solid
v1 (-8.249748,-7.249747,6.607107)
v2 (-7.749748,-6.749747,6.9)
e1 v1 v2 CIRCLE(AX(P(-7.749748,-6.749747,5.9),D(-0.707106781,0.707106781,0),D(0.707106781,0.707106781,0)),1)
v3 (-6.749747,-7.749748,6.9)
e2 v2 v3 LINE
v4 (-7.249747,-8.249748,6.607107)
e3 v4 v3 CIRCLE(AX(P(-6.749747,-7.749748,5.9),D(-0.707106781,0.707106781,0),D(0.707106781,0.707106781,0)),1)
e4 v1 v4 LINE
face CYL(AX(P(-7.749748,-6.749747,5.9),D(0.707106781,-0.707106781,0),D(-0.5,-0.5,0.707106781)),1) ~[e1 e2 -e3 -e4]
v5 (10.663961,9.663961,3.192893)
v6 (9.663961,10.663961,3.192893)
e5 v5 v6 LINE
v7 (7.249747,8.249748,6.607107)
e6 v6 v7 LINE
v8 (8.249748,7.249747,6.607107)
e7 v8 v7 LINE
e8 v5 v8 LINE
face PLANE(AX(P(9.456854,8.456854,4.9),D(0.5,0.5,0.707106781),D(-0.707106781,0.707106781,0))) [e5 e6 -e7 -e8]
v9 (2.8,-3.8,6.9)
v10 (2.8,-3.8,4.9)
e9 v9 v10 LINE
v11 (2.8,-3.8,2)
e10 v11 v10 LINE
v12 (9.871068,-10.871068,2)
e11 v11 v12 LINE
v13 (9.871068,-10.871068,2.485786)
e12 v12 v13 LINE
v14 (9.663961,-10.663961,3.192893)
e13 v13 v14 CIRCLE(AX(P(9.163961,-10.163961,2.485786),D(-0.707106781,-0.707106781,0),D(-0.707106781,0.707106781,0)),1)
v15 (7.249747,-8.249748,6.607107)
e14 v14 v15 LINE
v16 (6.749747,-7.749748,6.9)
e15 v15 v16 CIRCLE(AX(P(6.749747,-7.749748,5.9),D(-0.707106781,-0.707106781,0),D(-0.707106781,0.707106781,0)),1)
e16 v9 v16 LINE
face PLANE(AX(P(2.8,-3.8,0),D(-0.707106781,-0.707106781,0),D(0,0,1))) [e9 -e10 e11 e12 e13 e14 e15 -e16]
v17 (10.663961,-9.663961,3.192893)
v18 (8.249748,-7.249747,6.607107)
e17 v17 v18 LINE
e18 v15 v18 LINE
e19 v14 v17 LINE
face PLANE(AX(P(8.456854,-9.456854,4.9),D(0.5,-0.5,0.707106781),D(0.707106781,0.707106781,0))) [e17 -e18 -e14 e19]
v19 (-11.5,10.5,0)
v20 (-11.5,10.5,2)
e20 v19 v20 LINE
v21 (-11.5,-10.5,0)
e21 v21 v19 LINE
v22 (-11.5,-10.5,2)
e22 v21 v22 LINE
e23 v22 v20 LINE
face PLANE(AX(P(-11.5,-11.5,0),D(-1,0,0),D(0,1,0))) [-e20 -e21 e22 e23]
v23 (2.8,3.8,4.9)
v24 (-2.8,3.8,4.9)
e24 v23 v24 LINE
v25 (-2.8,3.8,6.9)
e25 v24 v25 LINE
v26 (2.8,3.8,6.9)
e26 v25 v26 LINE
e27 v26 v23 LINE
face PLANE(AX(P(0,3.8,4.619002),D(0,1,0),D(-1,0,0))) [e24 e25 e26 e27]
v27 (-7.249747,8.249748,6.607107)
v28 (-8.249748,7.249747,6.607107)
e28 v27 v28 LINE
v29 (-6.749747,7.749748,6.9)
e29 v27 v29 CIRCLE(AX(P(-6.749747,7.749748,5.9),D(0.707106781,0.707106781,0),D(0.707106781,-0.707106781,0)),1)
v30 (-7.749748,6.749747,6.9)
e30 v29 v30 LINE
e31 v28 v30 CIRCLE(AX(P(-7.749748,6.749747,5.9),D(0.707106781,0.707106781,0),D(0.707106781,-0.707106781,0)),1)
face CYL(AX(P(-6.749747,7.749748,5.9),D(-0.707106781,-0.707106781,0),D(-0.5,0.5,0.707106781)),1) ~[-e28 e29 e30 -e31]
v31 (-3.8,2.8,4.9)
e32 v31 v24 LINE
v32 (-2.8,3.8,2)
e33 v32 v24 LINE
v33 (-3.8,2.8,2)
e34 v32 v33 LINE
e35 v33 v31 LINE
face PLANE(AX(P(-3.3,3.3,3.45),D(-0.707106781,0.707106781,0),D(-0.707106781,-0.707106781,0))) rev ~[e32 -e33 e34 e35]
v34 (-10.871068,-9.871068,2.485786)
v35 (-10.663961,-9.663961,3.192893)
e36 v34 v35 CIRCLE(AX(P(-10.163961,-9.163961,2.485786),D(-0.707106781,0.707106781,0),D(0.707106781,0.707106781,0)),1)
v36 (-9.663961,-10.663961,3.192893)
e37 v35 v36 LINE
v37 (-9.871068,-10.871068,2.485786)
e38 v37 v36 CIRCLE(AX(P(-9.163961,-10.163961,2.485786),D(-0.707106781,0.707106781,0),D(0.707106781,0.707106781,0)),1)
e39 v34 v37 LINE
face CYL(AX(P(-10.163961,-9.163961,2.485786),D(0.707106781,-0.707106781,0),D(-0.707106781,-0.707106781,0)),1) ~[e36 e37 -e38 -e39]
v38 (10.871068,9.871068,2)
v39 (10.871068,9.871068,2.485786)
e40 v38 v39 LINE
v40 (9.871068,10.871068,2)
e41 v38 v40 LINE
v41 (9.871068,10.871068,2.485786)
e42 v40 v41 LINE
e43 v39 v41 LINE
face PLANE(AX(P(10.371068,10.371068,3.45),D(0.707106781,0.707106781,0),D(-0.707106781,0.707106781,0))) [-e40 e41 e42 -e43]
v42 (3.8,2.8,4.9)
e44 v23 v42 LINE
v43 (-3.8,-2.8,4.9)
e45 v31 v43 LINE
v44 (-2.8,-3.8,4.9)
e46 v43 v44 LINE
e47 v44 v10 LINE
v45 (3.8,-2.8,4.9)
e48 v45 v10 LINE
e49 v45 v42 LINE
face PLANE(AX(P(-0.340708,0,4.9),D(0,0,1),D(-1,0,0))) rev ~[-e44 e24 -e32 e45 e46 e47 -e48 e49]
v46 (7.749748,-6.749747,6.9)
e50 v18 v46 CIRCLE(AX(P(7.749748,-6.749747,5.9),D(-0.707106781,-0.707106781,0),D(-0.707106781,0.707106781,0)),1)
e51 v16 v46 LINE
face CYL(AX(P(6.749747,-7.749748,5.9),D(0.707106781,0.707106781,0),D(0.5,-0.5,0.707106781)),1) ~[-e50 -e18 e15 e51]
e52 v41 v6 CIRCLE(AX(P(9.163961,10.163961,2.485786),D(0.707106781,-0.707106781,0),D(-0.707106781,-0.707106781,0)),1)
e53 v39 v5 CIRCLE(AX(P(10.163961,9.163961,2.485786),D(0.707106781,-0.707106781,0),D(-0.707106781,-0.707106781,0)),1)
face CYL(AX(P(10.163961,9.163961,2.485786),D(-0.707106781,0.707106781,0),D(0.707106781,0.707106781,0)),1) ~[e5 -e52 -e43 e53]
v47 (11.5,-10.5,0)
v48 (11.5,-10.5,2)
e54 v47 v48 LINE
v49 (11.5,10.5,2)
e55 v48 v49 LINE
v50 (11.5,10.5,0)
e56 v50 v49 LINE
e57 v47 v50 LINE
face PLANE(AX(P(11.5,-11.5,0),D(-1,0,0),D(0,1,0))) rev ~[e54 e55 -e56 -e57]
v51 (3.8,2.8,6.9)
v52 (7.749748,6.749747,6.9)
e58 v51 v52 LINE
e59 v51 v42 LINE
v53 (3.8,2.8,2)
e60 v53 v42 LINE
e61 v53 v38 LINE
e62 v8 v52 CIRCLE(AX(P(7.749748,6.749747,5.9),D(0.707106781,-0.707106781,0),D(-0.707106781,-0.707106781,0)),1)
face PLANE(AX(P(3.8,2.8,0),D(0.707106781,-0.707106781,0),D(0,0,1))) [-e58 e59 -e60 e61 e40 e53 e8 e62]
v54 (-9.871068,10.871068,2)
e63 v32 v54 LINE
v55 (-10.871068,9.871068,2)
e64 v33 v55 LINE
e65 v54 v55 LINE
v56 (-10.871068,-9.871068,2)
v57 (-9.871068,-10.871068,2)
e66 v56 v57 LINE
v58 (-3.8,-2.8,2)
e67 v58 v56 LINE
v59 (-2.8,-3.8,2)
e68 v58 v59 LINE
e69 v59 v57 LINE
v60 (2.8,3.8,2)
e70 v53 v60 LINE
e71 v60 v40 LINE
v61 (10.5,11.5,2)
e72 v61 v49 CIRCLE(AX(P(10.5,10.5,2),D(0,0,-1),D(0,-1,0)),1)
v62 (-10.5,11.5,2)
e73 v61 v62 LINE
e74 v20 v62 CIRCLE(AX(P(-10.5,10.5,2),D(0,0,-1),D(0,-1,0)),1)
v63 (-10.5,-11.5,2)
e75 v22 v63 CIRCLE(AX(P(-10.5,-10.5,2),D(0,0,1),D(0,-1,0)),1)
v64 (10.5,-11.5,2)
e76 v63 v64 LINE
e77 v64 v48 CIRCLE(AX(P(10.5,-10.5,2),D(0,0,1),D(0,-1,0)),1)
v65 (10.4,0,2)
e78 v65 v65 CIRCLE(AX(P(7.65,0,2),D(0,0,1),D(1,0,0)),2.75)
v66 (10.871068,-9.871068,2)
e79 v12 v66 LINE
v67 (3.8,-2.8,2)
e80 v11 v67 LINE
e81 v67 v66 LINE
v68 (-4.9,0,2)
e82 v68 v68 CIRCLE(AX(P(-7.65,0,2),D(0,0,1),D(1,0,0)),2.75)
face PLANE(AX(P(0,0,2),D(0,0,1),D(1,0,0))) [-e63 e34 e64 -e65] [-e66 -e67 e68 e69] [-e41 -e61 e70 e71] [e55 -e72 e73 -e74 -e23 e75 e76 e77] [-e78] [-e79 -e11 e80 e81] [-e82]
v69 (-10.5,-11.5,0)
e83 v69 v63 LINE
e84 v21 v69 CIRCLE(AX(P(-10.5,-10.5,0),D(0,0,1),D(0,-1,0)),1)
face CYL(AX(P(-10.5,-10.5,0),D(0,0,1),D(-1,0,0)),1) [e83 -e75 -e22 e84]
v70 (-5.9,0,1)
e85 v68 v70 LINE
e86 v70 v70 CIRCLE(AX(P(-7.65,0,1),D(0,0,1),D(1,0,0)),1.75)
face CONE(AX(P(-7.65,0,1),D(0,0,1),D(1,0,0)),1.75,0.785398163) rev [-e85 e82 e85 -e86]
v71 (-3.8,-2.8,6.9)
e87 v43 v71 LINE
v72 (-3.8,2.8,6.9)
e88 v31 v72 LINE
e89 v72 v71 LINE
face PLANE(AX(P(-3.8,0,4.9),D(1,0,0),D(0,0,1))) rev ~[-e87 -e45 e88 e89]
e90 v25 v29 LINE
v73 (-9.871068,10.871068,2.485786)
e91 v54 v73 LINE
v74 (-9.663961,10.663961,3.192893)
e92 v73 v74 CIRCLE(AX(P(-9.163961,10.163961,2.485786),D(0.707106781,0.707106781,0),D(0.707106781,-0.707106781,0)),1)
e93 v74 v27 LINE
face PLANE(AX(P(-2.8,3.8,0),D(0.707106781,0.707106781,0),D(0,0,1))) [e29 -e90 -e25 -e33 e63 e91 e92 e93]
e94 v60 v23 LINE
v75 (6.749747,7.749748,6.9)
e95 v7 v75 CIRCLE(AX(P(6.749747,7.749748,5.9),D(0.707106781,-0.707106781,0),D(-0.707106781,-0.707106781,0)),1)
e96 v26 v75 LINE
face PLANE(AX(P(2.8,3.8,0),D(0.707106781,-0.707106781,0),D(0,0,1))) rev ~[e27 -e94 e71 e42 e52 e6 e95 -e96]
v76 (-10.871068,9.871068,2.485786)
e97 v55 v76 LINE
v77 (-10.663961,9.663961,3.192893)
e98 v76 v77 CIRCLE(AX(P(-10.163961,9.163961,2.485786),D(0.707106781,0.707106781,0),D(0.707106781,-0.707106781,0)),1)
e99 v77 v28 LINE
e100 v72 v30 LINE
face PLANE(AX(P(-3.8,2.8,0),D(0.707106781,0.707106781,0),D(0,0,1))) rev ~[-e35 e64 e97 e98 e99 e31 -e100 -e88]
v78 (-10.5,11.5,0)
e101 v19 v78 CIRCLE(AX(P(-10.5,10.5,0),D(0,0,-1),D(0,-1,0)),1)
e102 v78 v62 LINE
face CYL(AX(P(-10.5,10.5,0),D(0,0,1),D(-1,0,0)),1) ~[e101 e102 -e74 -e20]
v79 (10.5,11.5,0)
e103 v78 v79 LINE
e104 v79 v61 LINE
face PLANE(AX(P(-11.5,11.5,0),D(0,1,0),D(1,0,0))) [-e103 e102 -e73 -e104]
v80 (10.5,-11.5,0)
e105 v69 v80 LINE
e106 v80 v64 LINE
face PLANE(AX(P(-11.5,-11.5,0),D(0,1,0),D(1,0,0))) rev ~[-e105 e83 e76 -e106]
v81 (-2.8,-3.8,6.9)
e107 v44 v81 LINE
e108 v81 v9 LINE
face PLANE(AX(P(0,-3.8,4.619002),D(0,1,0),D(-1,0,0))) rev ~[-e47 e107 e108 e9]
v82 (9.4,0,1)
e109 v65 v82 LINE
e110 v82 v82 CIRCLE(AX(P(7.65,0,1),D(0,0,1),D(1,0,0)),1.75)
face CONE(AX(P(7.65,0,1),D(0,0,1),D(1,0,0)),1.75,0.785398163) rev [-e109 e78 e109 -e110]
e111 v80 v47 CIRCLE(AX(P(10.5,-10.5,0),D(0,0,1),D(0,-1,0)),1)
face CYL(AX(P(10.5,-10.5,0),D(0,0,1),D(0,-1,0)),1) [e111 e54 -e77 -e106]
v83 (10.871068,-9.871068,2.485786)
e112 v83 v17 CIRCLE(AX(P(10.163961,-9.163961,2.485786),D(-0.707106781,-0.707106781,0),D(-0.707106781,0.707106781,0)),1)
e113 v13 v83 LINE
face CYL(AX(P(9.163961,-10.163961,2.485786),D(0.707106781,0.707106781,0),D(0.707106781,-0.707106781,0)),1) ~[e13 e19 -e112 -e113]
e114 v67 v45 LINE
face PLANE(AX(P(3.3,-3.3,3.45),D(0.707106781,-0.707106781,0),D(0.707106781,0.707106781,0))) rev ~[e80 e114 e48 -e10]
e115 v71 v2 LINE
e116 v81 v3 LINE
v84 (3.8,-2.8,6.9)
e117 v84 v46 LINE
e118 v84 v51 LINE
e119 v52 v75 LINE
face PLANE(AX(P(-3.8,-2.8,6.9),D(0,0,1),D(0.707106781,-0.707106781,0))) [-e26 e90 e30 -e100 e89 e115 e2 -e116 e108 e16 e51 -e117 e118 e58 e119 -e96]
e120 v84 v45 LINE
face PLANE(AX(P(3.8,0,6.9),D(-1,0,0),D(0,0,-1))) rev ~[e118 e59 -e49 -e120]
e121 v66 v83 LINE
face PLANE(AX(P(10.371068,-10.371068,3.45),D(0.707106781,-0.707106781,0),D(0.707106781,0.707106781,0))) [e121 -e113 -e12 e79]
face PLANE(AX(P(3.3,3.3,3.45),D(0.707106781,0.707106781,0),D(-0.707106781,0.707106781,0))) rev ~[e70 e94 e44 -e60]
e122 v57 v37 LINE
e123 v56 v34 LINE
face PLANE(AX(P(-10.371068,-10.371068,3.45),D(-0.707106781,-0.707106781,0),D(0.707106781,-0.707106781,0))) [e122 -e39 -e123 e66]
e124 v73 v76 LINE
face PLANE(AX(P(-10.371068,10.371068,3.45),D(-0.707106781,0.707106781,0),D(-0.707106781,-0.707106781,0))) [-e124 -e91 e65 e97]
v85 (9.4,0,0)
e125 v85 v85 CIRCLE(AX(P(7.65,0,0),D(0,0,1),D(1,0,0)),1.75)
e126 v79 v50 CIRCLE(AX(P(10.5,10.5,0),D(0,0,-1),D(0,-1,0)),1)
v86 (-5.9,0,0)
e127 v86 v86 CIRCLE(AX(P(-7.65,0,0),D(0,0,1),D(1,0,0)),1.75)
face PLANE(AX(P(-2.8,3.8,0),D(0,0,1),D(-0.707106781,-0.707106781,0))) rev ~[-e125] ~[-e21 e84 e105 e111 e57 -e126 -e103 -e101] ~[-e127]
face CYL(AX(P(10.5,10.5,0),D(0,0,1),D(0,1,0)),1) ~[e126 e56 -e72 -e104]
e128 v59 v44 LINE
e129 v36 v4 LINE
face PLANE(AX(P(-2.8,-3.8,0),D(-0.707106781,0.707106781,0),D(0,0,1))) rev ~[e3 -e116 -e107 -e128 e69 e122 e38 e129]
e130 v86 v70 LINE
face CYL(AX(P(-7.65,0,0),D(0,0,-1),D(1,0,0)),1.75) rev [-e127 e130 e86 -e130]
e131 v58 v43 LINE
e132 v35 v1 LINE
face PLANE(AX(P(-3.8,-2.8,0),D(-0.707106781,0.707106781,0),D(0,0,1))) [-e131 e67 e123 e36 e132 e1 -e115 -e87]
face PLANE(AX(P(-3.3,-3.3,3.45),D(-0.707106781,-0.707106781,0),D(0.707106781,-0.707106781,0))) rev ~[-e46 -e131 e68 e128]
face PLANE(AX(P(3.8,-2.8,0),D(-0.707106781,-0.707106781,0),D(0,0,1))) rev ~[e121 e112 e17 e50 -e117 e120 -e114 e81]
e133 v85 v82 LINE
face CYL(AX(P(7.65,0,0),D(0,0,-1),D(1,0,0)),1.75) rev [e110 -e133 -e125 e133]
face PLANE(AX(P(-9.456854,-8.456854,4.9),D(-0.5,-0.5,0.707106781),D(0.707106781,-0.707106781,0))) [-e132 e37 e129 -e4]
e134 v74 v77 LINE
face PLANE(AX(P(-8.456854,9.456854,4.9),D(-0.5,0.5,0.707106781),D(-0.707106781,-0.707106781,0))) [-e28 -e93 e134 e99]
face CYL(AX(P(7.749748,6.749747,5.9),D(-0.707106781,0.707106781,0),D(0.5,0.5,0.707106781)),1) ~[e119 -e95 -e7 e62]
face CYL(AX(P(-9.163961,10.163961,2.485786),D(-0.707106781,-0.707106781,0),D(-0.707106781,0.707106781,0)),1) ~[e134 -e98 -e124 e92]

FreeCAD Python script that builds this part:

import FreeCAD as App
import Part
import Sketcher
from FreeCAD import Vector


def edges_at(feature, points):
    """Names of the edges that pass closest to the given points."""
    edges = feature.Shape.Edges
    near = lambda p: min(range(len(edges)), key=lambda i: edges[i].distToShape(Part.Vertex(*p))[0])
    return sorted({f"Edge{near(p) + 1}" for p in points})

doc = App.newDocument("Part")
params = doc.addObject("Spreadsheet::Sheet", "Params")
for row, (alias, value) in enumerate([
    ("sketch1_diameter", "3.5 mm"),
    ("sketch1_width", "23 mm"),
    ("pad1_length", "2 mm"),
    ("fillet_radius", "1 mm"),
    ("chamfer_size", "1 mm"),
    ("sketch2_height", "2 mm"),
    ("sketch2_width", "7.6 mm"),
    ("sketch2_height2", "4.9 mm"),
    ("pad2_length", "7.6 mm"),
    ("chamfer2_size", "1 mm"),
    ("sketch3_height", "6.9 mm"),
    ("pad3_length", "10 mm"),
    ("chamfer3_size", "4 mm"),
    ("sketch4_height", "2.9 mm"),
    ("fillet2_radius", "1 mm"),
], start=1):
    params.set(f"A{row}", alias)
    params.set(f"B{row}", "=" + value)
    params.setAlias(f"B{row}", alias)

body = doc.addObject("PartDesign::Body", "Body")

# Sketch on XY plane
sketch1 = body.newObject("Sketcher::SketchObject", "Sketch")
sketch1.AttachmentSupport = (doc.getObject("XY_Plane"), [""])
sketch1.MapMode = "FlatFace"
sketch1.addGeometry([
    Part.LineSegment(Vector(-11.5, 11.5, 0), Vector(-11.5, -11.5, 0)),  # 0
    Part.LineSegment(Vector(-11.5, -11.5, 0), Vector(11.5, -11.5, 0)),  # 1
    Part.LineSegment(Vector(11.5, -11.5, 0), Vector(11.5, 11.5, 0)),  # 2
    Part.LineSegment(Vector(11.5, 11.5, 0), Vector(-11.5, 11.5, 0)),  # 3
    Part.Circle(Vector(-7.65, 0, 0), Vector(0, 0, 1), 1.75),  # 4
    Part.Circle(Vector(7.65, 0, 0), Vector(0, 0, 1), 1.75),  # 5
], False)
sketch1.addConstraint([
    Sketcher.Constraint("Coincident", 0, 2, 1, 1),
    Sketcher.Constraint("Coincident", 1, 2, 2, 1),
    Sketcher.Constraint("Coincident", 2, 2, 3, 1),
    Sketcher.Constraint("Coincident", 3, 2, 0, 1),
    Sketcher.Constraint("Vertical", 0),
    Sketcher.Constraint("Horizontal", 1),
    Sketcher.Constraint("Vertical", 2),
    Sketcher.Constraint("Horizontal", 3),
    Sketcher.Constraint("Equal", 4, 5),
    Sketcher.Constraint("Symmetric", 4, 3, 5, 3, -1, 1),
    Sketcher.Constraint("Symmetric", 0, 2, 2, 2, -1, 1),
    Sketcher.Constraint("PointOnObject", 4, 3, -1),
    Sketcher.Constraint("Equal", 3, 0),
    Sketcher.Constraint("Diameter", 4, 3.5),
    Sketcher.Constraint("DistanceX", 1, 1, 1, 2, 23.0),
    Sketcher.Constraint("DistanceX", 4, 3, 5, 3, 15.3),
])
sketch1.setExpression("Constraints[13]", "Params.sketch1_diameter")
sketch1.setExpression("Constraints[14]", "Params.sketch1_width")
pad1 = body.newObject("PartDesign::Pad", "Pad")
pad1.Profile = sketch1
pad1.setExpression("Length", "Params.pad1_length")
doc.recompute()

fillet = body.newObject("PartDesign::Fillet", "Fillet")
fillet.Base = (pad1, edges_at(pad1, [
    (-11.5, 11.5, 1),
    (-11.5, -11.5, 1),
    (11.5, -11.5, 1),
    (11.5, 11.5, 1),
]))
fillet.setExpression("Radius", "Params.fillet_radius")
doc.recompute()

chamfer = body.newObject("PartDesign::Chamfer", "Chamfer")
chamfer.Base = (fillet, edges_at(fillet, [(-9.4, 0, 2), (5.9, 0, 2)]))
chamfer.setExpression("Size", "Params.chamfer_size")

# Sketch on XZ plane
sketch2 = body.newObject("Sketcher::SketchObject", "Sketch001")
sketch2.AttachmentSupport = (doc.getObject("XZ_Plane"), [""])
sketch2.MapMode = "FlatFace"
sketch2.addGeometry([
    Part.LineSegment(Vector(3.8, 6.9, 0), Vector(-3.8, 6.9, 0)),  # 0
    Part.LineSegment(Vector(-3.8, 6.9, 0), Vector(-3.8, 4.9, 0)),  # 1
    Part.LineSegment(Vector(-3.8, 4.9, 0), Vector(-0.340708, 4.9, 0)),  # 2
    Part.LineSegment(Vector(-0.340708, 4.9, 0), Vector(-0.340708, 0, 0)),  # 3
    Part.LineSegment(Vector(-0.340708, 0, 0), Vector(0.340708, 0, 0)),  # 4
    Part.LineSegment(Vector(0.340708, 0, 0), Vector(0.340708, 4.9, 0)),  # 5
    Part.LineSegment(Vector(0.340708, 4.9, 0), Vector(3.8, 4.9, 0)),  # 6
    Part.LineSegment(Vector(3.8, 4.9, 0), Vector(3.8, 6.9, 0)),  # 7
], False)
sketch2.addConstraint([
    Sketcher.Constraint("Coincident", 0, 2, 1, 1),
    Sketcher.Constraint("Coincident", 1, 2, 2, 1),
    Sketcher.Constraint("Coincident", 2, 2, 3, 1),
    Sketcher.Constraint("Coincident", 3, 2, 4, 1),
    Sketcher.Constraint("Coincident", 4, 2, 5, 1),
    Sketcher.Constraint("Coincident", 5, 2, 6, 1),
    Sketcher.Constraint("Coincident", 6, 2, 7, 1),
    Sketcher.Constraint("Coincident", 7, 2, 0, 1),
    Sketcher.Constraint("Horizontal", 0),
    Sketcher.Constraint("Vertical", 1),
    Sketcher.Constraint("Horizontal", 2),
    Sketcher.Constraint("Vertical", 3),
    Sketcher.Constraint("Horizontal", 4),
    Sketcher.Constraint("Vertical", 5),
    Sketcher.Constraint("Horizontal", 6),
    Sketcher.Constraint("Vertical", 7),
    Sketcher.Constraint("Symmetric", 3, 2, 4, 2, -1, 1),
    Sketcher.Constraint("Symmetric", 1, 2, 6, 2, -2),
    Sketcher.Constraint("DistanceY", 1, 2, 1, 1, 2.0),
    Sketcher.Constraint("DistanceX", 0, 2, 0, 1, 7.6),
    Sketcher.Constraint("DistanceY", 3, 2, 3, 1, 4.9),
    Sketcher.Constraint("DistanceX", 2, 1, 2, 2, 3.459292),
])
sketch2.setExpression("Constraints[18]", "Params.sketch2_height")
sketch2.setExpression("Constraints[19]", "Params.sketch2_width")
sketch2.setExpression("Constraints[20]", "Params.sketch2_height2")
pad2 = body.newObject("PartDesign::Pad", "Pad001")
pad2.Profile = sketch2
pad2.setExpression("Length", "Params.pad2_length")
pad2.Midplane = True
doc.recompute()

chamfer2 = body.newObject("PartDesign::Chamfer", "Chamfer001")
chamfer2.Base = (pad2, edges_at(pad2, [
    (-3.8, -3.8, 5.9),
    (-3.8, 3.8, 5.9),
    (3.8, -3.8, 5.9),
    (3.8, 3.8, 5.9),
]))
chamfer2.setExpression("Size", "Params.chamfer2_size")

# Sketch on an angled plane
sketch3 = body.newObject("Sketcher::SketchObject", "Sketch002")
sketch3.Placement = App.Placement(Vector(-3.3, -3.3, 0), App.Rotation(Vector(0.707106781, -0.707106781, 0), Vector(0, 0, 0.999999999), Vector(-0.707106781, -0.707106781, 0), "ZXY"))
sketch3.addGeometry([
    Part.LineSegment(Vector(-0.707107, 6.9, 0), Vector(-0.707107, 0, 0)),
    Part.LineSegment(Vector(-0.707107, 0, 0), Vector(0.707107, 0, 0)),
    Part.LineSegment(Vector(0.707107, 0, 0), Vector(0.707107, 6.9, 0)),
    Part.LineSegment(Vector(0.707107, 6.9, 0), Vector(-0.707107, 6.9, 0)),
], False)
sketch3.addConstraint([
    Sketcher.Constraint("Coincident", 0, 2, 1, 1),
    Sketcher.Constraint("Coincident", 1, 2, 2, 1),
    Sketcher.Constraint("Coincident", 2, 2, 3, 1),
    Sketcher.Constraint("Coincident", 3, 2, 0, 1),
    Sketcher.Constraint("Vertical", 0),
    Sketcher.Constraint("Horizontal", 1),
    Sketcher.Constraint("Vertical", 2),
    Sketcher.Constraint("Horizontal", 3),
    Sketcher.Constraint("Symmetric", 0, 2, 1, 2, -1, 1),
    Sketcher.Constraint("DistanceY", 0, 2, 0, 1, 6.9),
    Sketcher.Constraint("DistanceX", 1, 1, 1, 2, 1.414214),
])
sketch3.setExpression("Constraints[9]", "Params.sketch3_height")
pad3 = body.newObject("PartDesign::Pad", "Pad002")
pad3.Profile = sketch3
pad3.setExpression("Length", "Params.pad3_length")
doc.recompute()

polarpattern = body.newObject("PartDesign::PolarPattern", "PolarPattern")
polarpattern.Originals = [pad3]
polarpattern.Axis = (doc.getObject("Z_Axis"), [""])
polarpattern.Angle = 360
polarpattern.Occurrences = 4
body.Tip = polarpattern
doc.recompute()

chamfer3 = body.newObject("PartDesign::Chamfer", "Chamfer002")
chamfer3.Base = (polarpattern, edges_at(polarpattern, [
    (10.371, -10.371, 6.9),
    (10.371, 10.371, 6.9),
    (-10.371, 10.371, 6.9),
    (-10.371, -10.371, 6.9),
]))
chamfer3.setExpression("Size", "Params.chamfer3_size")

# Sketch on XZ plane
sketch4 = body.newObject("Sketcher::SketchObject", "Sketch003")
sketch4.AttachmentSupport = (doc.getObject("XZ_Plane"), [""])
sketch4.MapMode = "FlatFace"
sketch4.addGeometry([
    Part.LineSegment(Vector(-1.060404, 4.9, 0), Vector(-1.060404, 2, 0)),
    Part.LineSegment(Vector(-1.060404, 2, 0), Vector(1.305322, 2, 0)),
    Part.LineSegment(Vector(1.305322, 2, 0), Vector(1.305322, 4.9, 0)),
    Part.LineSegment(Vector(1.305322, 4.9, 0), Vector(-1.060404, 4.9, 0)),
], False)
sketch4.addConstraint([
    Sketcher.Constraint("Coincident", 0, 2, 1, 1),
    Sketcher.Constraint("Coincident", 1, 2, 2, 1),
    Sketcher.Constraint("Coincident", 2, 2, 3, 1),
    Sketcher.Constraint("Coincident", 3, 2, 0, 1),
    Sketcher.Constraint("Vertical", 0),
    Sketcher.Constraint("Horizontal", 1),
    Sketcher.Constraint("Vertical", 2),
    Sketcher.Constraint("Horizontal", 3),
    Sketcher.Constraint("DistanceY", 0, 2, 0, 1, 2.9),
    Sketcher.Constraint("DistanceY", -1, 1, 0, 2, 2.0),
    Sketcher.Constraint("DistanceX", 1, 1, 1, 2, 2.365725),
    Sketcher.Constraint("DistanceX", -1, 1, 1, 2, 1.305322),
])
sketch4.setExpression("Constraints[8]", "Params.sketch4_height")
pocket1 = body.newObject("PartDesign::Pocket", "Pocket")
pocket1.Profile = sketch4
pocket1.Type = "ThroughAll"
pocket1.Midplane = True
doc.recompute()

fillet2 = body.newObject("PartDesign::Fillet", "Fillet001")
fillet2.Base = (pocket1, edges_at(pocket1, [
    (-10.371, -10.371, 2.9),
    (10.371, -10.371, 2.9),
    (7.543, -7.543, 6.9),
    (-7.543, -7.543, 6.9),
    (-7.543, 7.543, 6.9),
    (7.543, 7.543, 6.9),
    (10.371, 10.371, 2.9),
    (-10.371, 10.371, 2.9),
]))
fillet2.setExpression("Radius", "Params.fillet2_radius")

doc.recompute()
